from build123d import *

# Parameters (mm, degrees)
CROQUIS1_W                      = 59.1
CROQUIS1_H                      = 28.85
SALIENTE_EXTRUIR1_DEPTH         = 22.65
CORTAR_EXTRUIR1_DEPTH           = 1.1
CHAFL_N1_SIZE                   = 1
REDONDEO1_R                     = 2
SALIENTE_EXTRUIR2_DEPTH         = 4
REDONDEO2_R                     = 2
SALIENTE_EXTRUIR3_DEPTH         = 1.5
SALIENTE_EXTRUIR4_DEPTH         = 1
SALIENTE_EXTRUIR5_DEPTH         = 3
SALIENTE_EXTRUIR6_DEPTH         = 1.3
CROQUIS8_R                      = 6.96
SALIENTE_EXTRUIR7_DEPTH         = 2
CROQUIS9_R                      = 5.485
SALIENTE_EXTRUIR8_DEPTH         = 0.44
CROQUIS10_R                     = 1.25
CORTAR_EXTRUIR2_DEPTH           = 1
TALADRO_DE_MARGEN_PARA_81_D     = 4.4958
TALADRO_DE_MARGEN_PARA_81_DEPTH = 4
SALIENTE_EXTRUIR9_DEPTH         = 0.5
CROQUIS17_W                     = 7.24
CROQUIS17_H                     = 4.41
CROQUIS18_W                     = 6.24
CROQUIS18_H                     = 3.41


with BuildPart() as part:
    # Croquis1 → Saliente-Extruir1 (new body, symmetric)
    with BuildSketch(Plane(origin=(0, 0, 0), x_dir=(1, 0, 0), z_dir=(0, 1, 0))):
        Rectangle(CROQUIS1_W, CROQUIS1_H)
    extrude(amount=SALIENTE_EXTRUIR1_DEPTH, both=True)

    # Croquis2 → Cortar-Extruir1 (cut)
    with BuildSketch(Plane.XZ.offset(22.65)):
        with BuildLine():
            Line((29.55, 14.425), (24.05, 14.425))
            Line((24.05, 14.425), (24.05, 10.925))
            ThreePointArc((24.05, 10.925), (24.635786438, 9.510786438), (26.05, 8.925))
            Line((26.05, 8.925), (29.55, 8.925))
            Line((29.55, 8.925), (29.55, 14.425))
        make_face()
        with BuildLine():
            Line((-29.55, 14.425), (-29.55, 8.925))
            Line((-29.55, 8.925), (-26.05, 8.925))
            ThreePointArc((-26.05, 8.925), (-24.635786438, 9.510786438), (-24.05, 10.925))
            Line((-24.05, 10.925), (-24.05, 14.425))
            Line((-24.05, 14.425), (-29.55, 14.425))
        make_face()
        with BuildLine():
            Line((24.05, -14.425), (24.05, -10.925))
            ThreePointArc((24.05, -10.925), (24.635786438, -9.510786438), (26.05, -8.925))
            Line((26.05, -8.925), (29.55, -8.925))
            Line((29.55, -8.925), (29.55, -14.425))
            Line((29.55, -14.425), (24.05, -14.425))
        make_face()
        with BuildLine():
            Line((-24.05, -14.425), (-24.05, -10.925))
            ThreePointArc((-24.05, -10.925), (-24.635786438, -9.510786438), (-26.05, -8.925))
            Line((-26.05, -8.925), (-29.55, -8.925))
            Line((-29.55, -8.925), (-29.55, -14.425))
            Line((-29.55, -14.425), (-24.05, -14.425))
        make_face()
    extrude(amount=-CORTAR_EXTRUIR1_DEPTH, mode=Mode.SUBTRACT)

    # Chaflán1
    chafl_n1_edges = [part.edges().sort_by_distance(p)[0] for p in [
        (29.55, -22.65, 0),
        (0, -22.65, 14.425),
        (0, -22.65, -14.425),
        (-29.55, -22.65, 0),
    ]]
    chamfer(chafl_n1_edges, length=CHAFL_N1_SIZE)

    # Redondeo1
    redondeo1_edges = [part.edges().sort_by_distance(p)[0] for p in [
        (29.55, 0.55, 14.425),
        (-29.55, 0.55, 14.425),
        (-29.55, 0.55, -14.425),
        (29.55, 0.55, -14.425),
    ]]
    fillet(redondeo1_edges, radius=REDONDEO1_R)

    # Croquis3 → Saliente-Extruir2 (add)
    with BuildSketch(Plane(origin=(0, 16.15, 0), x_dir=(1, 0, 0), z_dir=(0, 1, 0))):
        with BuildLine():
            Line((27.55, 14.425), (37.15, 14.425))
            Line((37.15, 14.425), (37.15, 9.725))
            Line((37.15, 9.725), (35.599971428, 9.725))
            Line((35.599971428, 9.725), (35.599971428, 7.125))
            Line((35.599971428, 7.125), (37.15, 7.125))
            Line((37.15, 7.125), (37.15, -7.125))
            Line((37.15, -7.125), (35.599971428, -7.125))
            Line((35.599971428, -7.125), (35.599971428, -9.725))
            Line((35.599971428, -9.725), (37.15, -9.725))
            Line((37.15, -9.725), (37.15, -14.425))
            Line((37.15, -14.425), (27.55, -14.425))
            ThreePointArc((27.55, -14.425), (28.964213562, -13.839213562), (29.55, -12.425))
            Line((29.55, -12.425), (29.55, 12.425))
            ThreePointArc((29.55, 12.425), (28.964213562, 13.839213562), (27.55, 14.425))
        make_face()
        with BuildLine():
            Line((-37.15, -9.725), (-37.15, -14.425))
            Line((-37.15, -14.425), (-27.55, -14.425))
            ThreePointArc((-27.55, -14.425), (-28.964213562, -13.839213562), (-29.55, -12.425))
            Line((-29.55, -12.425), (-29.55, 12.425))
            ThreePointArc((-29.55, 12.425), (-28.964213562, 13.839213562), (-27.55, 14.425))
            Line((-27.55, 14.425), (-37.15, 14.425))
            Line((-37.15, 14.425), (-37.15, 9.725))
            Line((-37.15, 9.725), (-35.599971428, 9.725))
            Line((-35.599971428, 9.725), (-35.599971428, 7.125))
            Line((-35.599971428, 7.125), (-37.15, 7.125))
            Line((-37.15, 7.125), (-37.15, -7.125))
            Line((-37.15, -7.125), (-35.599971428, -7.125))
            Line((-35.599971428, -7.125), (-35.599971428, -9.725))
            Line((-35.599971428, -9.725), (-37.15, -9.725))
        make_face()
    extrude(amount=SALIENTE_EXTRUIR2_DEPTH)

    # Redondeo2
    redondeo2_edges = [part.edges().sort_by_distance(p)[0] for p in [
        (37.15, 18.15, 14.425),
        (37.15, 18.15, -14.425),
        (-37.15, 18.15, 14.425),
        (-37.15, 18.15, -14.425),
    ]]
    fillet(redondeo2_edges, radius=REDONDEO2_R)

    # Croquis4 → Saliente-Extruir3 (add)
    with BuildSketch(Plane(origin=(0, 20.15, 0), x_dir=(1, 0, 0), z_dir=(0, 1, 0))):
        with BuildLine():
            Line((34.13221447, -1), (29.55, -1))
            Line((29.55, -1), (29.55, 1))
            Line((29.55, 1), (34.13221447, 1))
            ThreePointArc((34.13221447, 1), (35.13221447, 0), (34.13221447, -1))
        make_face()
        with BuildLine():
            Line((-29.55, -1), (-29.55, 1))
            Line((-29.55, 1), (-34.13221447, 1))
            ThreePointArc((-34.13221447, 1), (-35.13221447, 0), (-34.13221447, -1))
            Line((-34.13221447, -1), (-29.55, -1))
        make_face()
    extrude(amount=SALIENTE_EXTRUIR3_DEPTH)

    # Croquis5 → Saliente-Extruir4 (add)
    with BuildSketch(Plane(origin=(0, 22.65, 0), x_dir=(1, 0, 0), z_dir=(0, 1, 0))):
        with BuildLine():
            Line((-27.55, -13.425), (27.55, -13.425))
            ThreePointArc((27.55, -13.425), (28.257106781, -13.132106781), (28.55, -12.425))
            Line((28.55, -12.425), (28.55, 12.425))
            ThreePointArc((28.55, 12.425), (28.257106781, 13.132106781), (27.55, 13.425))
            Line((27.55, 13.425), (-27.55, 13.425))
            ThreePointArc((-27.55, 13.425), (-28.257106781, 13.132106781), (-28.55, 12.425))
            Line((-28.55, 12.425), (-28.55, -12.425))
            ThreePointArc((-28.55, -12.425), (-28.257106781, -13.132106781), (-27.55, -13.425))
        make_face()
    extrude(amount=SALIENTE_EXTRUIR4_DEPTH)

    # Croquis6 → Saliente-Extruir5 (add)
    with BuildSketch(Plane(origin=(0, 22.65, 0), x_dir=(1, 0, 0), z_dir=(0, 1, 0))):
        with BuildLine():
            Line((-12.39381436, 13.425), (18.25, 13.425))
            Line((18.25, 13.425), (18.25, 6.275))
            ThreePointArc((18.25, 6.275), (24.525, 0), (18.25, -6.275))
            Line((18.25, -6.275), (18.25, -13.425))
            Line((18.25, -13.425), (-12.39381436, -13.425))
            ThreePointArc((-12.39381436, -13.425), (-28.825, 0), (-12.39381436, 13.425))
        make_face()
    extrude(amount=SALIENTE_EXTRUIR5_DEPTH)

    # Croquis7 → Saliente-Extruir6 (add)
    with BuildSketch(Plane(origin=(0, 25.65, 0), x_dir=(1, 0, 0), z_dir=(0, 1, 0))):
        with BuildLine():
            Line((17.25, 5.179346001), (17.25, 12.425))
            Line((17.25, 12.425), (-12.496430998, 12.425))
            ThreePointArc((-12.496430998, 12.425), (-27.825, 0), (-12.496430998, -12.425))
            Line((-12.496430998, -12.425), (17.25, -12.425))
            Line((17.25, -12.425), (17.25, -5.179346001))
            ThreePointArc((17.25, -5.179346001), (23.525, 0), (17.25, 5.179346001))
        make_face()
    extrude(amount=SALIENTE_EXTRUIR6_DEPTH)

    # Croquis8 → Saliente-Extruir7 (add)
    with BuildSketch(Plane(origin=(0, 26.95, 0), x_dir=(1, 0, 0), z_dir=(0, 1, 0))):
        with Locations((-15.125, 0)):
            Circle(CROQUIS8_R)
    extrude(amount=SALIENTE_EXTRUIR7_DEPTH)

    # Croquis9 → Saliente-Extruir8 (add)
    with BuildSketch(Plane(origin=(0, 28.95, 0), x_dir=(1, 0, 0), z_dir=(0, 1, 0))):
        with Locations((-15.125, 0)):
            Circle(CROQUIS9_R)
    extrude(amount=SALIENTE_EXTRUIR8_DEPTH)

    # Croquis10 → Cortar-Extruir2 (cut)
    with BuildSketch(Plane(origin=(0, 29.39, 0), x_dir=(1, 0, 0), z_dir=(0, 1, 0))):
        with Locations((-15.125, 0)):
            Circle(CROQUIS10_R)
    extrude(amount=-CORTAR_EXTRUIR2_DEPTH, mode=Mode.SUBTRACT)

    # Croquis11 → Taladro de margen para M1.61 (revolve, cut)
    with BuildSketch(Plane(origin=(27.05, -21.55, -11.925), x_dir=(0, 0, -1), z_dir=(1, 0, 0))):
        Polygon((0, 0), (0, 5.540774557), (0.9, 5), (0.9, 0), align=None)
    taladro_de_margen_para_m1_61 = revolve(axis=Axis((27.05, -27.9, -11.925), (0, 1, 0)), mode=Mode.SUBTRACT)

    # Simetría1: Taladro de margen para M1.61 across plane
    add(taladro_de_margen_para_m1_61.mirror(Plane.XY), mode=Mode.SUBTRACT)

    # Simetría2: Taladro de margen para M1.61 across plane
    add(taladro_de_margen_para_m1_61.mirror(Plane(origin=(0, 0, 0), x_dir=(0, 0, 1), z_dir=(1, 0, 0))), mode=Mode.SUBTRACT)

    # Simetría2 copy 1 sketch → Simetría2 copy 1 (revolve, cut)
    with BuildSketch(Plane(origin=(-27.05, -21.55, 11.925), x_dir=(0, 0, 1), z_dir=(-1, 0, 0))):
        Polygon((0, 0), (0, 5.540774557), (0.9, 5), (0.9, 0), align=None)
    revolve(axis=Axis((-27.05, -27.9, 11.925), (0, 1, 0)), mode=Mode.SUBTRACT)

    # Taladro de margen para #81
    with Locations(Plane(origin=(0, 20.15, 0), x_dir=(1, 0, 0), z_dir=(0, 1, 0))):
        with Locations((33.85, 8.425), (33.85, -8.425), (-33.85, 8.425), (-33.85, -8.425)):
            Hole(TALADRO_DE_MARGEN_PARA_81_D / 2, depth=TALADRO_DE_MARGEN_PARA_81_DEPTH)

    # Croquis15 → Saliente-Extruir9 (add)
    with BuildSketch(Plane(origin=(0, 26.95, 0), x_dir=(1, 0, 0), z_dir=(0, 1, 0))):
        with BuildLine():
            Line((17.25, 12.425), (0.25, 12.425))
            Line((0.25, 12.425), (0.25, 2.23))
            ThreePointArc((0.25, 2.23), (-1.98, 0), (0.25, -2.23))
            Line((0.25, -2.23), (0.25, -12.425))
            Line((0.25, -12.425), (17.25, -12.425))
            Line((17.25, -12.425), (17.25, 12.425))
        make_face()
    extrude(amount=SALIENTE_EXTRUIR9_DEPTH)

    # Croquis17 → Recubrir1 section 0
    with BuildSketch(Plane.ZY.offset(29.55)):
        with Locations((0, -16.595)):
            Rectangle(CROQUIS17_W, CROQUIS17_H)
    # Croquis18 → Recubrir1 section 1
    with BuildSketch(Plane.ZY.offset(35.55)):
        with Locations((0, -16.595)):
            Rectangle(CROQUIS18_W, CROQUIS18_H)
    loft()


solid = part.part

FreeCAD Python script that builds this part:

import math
import FreeCAD as App
import Part
import Sketcher

V = App.Vector
Q = App.Units.Quantity


def edges_at(feature, points):
    """Names of the edges that pass closest to the given points."""
    edges = feature.Shape.Edges
    near = lambda p: min(range(len(edges)), key=lambda i: edges[i].distToShape(Part.Vertex(*p))[0])
    return sorted({f"Edge{near(p) + 1}" for p in points})


def add_polygon(sketch, points):
    """Adds a closed chain of lines whose ends are joined by coincident constraints."""
    first, n = sketch.GeometryCount, len(points)
    for a, b in zip(points, points[1:] + points[:1]):
        sketch.addGeometry(Part.LineSegment(App.Vector(*a, 0), App.Vector(*b, 0)), False)
    for i in range(n):
        sketch.addConstraint(Sketcher.Constraint("Coincident", first + i, 2, first + (i + 1) % n, 1))

doc = App.newDocument("Part")
body = doc.addObject("PartDesign::Body", "Body")

sketch1 = body.newObject("Sketcher::SketchObject", "Sketch")
sketch1.AttachmentSupport = (doc.getObject("XZ_Plane"), [""])
sketch1.MapMode = "FlatFace"
add_polygon(sketch1, [(-30, -14), (-30, 14), (30, 14), (30, -14)])
sketch1.addConstraint([
    Sketcher.Constraint("Vertical", 0),
    Sketcher.Constraint("Horizontal", 1),
    Sketcher.Constraint("Vertical", 2),
    Sketcher.Constraint("Horizontal", 3),
    Sketcher.Constraint("Symmetric", 0, 2, 2, 2, -1, 1),
    Sketcher.Constraint("DistanceX", 1, 1, 1, 2, 59.1),
    Sketcher.Constraint("DistanceY", 0, 1, 0, 2, 28.85),
])
pad1 = body.newObject("PartDesign::Pad", "Pad")
pad1.Profile = sketch1
pad1.Length = 45.3
pad1.Midplane = True

sketch2 = body.newObject("Sketcher::SketchObject", "Sketch001")
sketch2.AttachmentSupport = (doc.getObject("XZ_Plane"), [""])
sketch2.MapMode = "FlatFace"
sketch2.AttachmentOffset = App.Placement(V(0, 0, 22.65), App.Rotation())
sketch2.addGeometry([
    Part.LineSegment(V(29.6, 14.4, 0), V(24.1, 14.4, 0)),
    Part.LineSegment(V(24.1, 14.4, 0), V(24.1, 10.9, 0)),
    Part.ArcOfCircle(Part.Circle(V(26.1, 10.9, 0), V(0, 0, 1), 2), math.radians(-180), math.radians(-90)),
    Part.LineSegment(V(26.1, 8.9, 0), V(29.6, 8.9, 0)),
    Part.LineSegment(V(29.6, 8.9, 0), V(29.6, 14.4, 0)),
    Part.LineSegment(V(-29.6, 14.4, 0), V(-29.6, 8.9, 0)),
    Part.LineSegment(V(-29.6, 8.9, 0), V(-26.1, 8.9, 0)),
    Part.ArcOfCircle(Part.Circle(V(-26.1, 10.9, 0), V(0, 0, 1), 2), math.radians(-90), math.radians(0)),
    Part.LineSegment(V(-24.1, 10.9, 0), V(-24.1, 14.4, 0)),
    Part.LineSegment(V(-24.1, 14.4, 0), V(-29.6, 14.4, 0)),
    Part.LineSegment(V(24.1, -10.9, 0), V(24.1, -14.4, 0)),
    Part.LineSegment(V(24.1, -14.4, 0), V(29.6, -14.4, 0)),
    Part.LineSegment(V(29.6, -14.4, 0), V(29.6, -8.9, 0)),
    Part.LineSegment(V(29.6, -8.9, 0), V(26.1, -8.9, 0)),
    Part.ArcOfCircle(Part.Circle(V(26.1, -10.9, 0), V(0, 0, 1), 2), math.radians(90), math.radians(180)),
    Part.LineSegment(V(-24.1, -14.4, 0), V(-24.1, -10.9, 0)),
    Part.ArcOfCircle(Part.Circle(V(-26.1, -10.9, 0), V(0, 0, 1), 2), math.radians(0), math.radians(90)),
    Part.LineSegment(V(-26.1, -8.9, 0), V(-29.6, -8.9, 0)),
    Part.LineSegment(V(-29.6, -8.9, 0), V(-29.6, -14.4, 0)),
    Part.LineSegment(V(-29.6, -14.4, 0), V(-24.1, -14.4, 0)),
], False)
sketch2.addConstraint([
    Sketcher.Constraint("Coincident", 0, 2, 1, 1),
    Sketcher.Constraint("Tangent", 1, 2, 2, 1),
    Sketcher.Constraint("Tangent", 2, 2, 3, 1),
    Sketcher.Constraint("Coincident", 3, 2, 4, 1),
    Sketcher.Constraint("Coincident", 4, 2, 0, 1),
    Sketcher.Constraint("Coincident", 5, 2, 6, 1),
    Sketcher.Constraint("Tangent", 6, 2, 7, 1),
    Sketcher.Constraint("Tangent", 7, 2, 8, 1),
    Sketcher.Constraint("Coincident", 8, 2, 9, 1),
    Sketcher.Constraint("Coincident", 9, 2, 5, 1),
    Sketcher.Constraint("Coincident", 10, 2, 11, 1),
    Sketcher.Constraint("Coincident", 11, 2, 12, 1),
    Sketcher.Constraint("Coincident", 12, 2, 13, 1),
    Sketcher.Constraint("Tangent", 13, 2, 14, 1),
    Sketcher.Constraint("Tangent", 14, 2, 10, 1),
    Sketcher.Constraint("Tangent", 15, 2, 16, 1),
    Sketcher.Constraint("Tangent", 16, 2, 17, 1),
    Sketcher.Constraint("Coincident", 17, 2, 18, 1),
    Sketcher.Constraint("Coincident", 18, 2, 19, 1),
    Sketcher.Constraint("Coincident", 19, 2, 15, 1),
    Sketcher.Constraint("Horizontal", 0),
    Sketcher.Constraint("Vertical", 1),
    Sketcher.Constraint("Horizontal", 3),
    Sketcher.Constraint("Vertical", 4),
    Sketcher.Constraint("Vertical", 5),
    Sketcher.Constraint("Horizontal", 6),
    Sketcher.Constraint("Vertical", 8),
    Sketcher.Constraint("Horizontal", 9),
    Sketcher.Constraint("Vertical", 10),
    Sketcher.Constraint("Horizontal", 11),
    Sketcher.Constraint("Vertical", 12),
    Sketcher.Constraint("Horizontal", 13),
    Sketcher.Constraint("Vertical", 15),
    Sketcher.Constraint("Horizontal", 17),
    Sketcher.Constraint("Vertical", 18),
    Sketcher.Constraint("Horizontal", 19),
    Sketcher.Constraint("Equal", 2, 7),
    Sketcher.Constraint("Equal", 7, 14),
    Sketcher.Constraint("Equal", 14, 16),
    Sketcher.Constraint("Symmetric", 7, 3, 14, 3, -1, 1),
    Sketcher.Constraint("Symmetric", 2, 3, 16, 3, -1, 1),
    Sketcher.Constraint("Symmetric", 9, 2, 11, 2, -1, 1),
    Sketcher.Constraint("Symmetric", 4, 2, 18, 2, -1, 1),
    Sketcher.Constraint("Symmetric", 2, 3, 7, 3, -2),
    Sketcher.Constraint("Symmetric", 4, 2, 9, 2, -2),
    Sketcher.Constraint("Equal", 17, 1),
    Sketcher.Constraint("Radius", 2, 2.0),
    Sketcher.Constraint("DistanceX", 0, 2, 0, 1, 5.5),
    Sketcher.Constraint("DistanceX", 7, 3, 2, 3, 52.1),
    Sketcher.Constraint("DistanceY", 14, 3, 2, 3, 21.85),
])
pocket1 = body.newObject("PartDesign::Pocket", "Pocket")
pocket1.Profile = sketch2
pocket1.Length = 1.1
doc.recompute()

chamfer = body.newObject("PartDesign::Chamfer", "Chamfer")
chamfer.Base = (pocket1, edges_at(pocket1, [
    (29.55, -22.65, 0),
    (0, -22.65, 14.425),
    (0, -22.65, -14.425),
    (-29.55, -22.65, 0),
]))
chamfer.Size = 1
doc.recompute()

fillet = body.newObject("PartDesign::Fillet", "Fillet")
fillet.Base = (chamfer, edges_at(chamfer, [
    (29.55, 0.55, 14.425),
    (-29.55, 0.55, 14.425),
    (-29.55, 0.55, -14.425),
    (29.55, 0.55, -14.425),
]))
fillet.Radius = 2

sketch3 = body.newObject("Sketcher::SketchObject", "Sketch002")
sketch3.AttachmentSupport = (doc.getObject("XZ_Plane"), [""])
sketch3.MapMode = "FlatFace"
sketch3.AttachmentOffset = App.Placement(V(0, 0, -16.15), App.Rotation())
sketch3.addGeometry([
    Part.LineSegment(V(37.1, -14.4, 0), V(27.6, -14.4, 0)),
    Part.ArcOfCircle(Part.Circle(V(27.5, -12.4, 0), V(0, 0, 1), 2), math.radians(-90), math.radians(0)),
    Part.LineSegment(V(29.6, -12.4, 0), V(29.6, 12.4, 0)),
    Part.ArcOfCircle(Part.Circle(V(27.5, 12.4, 0), V(0, 0, 1), 2), math.radians(0), math.radians(90)),
    Part.LineSegment(V(27.6, 14.4, 0), V(37.1, 14.4, 0)),
    Part.LineSegment(V(37.1, 14.4, 0), V(37.1, 9.7, 0)),
    Part.LineSegment(V(37.1, 9.7, 0), V(35.6, 9.7, 0)),
    Part.LineSegment(V(35.6, 9.7, 0), V(35.6, 7.1, 0)),
    Part.LineSegment(V(35.6, 7.1, 0), V(37.1, 7.1, 0)),
    Part.LineSegment(V(37.1, 7.1, 0), V(37.1, -7.1, 0)),
    Part.LineSegment(V(37.1, -7.1, 0), V(35.6, -7.1, 0)),
    Part.LineSegment(V(35.6, -7.1, 0), V(35.6, -9.7, 0)),
    Part.LineSegment(V(35.6, -9.7, 0), V(37.1, -9.7, 0)),
    Part.LineSegment(V(37.1, -9.7, 0), V(37.1, -14.4, 0)),
    Part.LineSegment(V(-37.1, 9.7, 0), V(-37.1, 14.4, 0)),
    Part.LineSegment(V(-37.1, 14.4, 0), V(-27.6, 14.4, 0)),
    Part.ArcOfCircle(Part.Circle(V(-27.5, 12.4, 0), V(0, 0, 1), 2), math.radians(90), math.radians(180)),
    Part.LineSegment(V(-29.6, 12.4, 0), V(-29.6, -12.4, 0)),
    Part.ArcOfCircle(Part.Circle(V(-27.5, -12.4, 0), V(0, 0, 1), 2), math.radians(-180), math.radians(-90)),
    Part.LineSegment(V(-27.6, -14.4, 0), V(-37.1, -14.4, 0)),
    Part.LineSegment(V(-37.1, -14.4, 0), V(-37.1, -9.7, 0)),
    Part.LineSegment(V(-37.1, -9.7, 0), V(-35.6, -9.7, 0)),
    Part.LineSegment(V(-35.6, -9.7, 0), V(-35.6, -7.1, 0)),
    Part.LineSegment(V(-35.6, -7.1, 0), V(-37.1, -7.1, 0)),
    Part.LineSegment(V(-37.1, -7.1, 0), V(-37.1, 7.1, 0)),
    Part.LineSegment(V(-37.1, 7.1, 0), V(-35.6, 7.1, 0)),
    Part.LineSegment(V(-35.6, 7.1, 0), V(-35.6, 9.7, 0)),
    Part.LineSegment(V(-35.6, 9.7, 0), V(-37.1, 9.7, 0)),
], False)
sketch3.addConstraint([
    Sketcher.Constraint("Tangent", 0, 2, 1, 1),
    Sketcher.Constraint("Tangent", 1, 2, 2, 1),
    Sketcher.Constraint("Tangent", 2, 2, 3, 1),
    Sketcher.Constraint("Tangent", 3, 2, 4, 1),
    Sketcher.Constraint("Coincident", 4, 2, 5, 1),
    Sketcher.Constraint("Coincident", 5, 2, 6, 1),
    Sketcher.Constraint("Coincident", 6, 2, 7, 1),
    Sketcher.Constraint("Coincident", 7, 2, 8, 1),
    Sketcher.Constraint("Coincident", 8, 2, 9, 1),
    Sketcher.Constraint("Coincident", 9, 2, 10, 1),
    Sketcher.Constraint("Coincident", 10, 2, 11, 1),
    Sketcher.Constraint("Coincident", 11, 2, 12, 1),
    Sketcher.Constraint("Coincident", 12, 2, 13, 1),
    Sketcher.Constraint("Coincident", 13, 2, 0, 1),
    Sketcher.Constraint("Coincident", 14, 2, 15, 1),
    Sketcher.Constraint("Tangent", 15, 2, 16, 1),
    Sketcher.Constraint("Tangent", 16, 2, 17, 1),
    Sketcher.Constraint("Tangent", 17, 2, 18, 1),
    Sketcher.Constraint("Tangent", 18, 2, 19, 1),
    Sketcher.Constraint("Coincident", 19, 2, 20, 1),
    Sketcher.Constraint("Coincident", 20, 2, 21, 1),
    Sketcher.Constraint("Coincident", 21, 2, 22, 1),
    Sketcher.Constraint("Coincident", 22, 2, 23, 1),
    Sketcher.Constraint("Coincident", 23, 2, 24, 1),
    Sketcher.Constraint("Coincident", 24, 2, 25, 1),
    Sketcher.Constraint("Coincident", 25, 2, 26, 1),
    Sketcher.Constraint("Coincident", 26, 2, 27, 1),
    Sketcher.Constraint("Coincident", 27, 2, 14, 1),
    Sketcher.Constraint("Horizontal", 0),
    Sketcher.Constraint("Vertical", 2),
    Sketcher.Constraint("Horizontal", 4),
    Sketcher.Constraint("Vertical", 5),
    Sketcher.Constraint("Horizontal", 6),
    Sketcher.Constraint("Vertical", 7),
    Sketcher.Constraint("Horizontal", 8),
    Sketcher.Constraint("Vertical", 9),
    Sketcher.Constraint("Horizontal", 10),
    Sketcher.Constraint("Vertical", 11),
    Sketcher.Constraint("Horizontal", 12),
    Sketcher.Constraint("Vertical", 13),
    Sketcher.Constraint("Vertical", 14),
    Sketcher.Constraint("Horizontal", 15),
    Sketcher.Constraint("Vertical", 17),
    Sketcher.Constraint("Horizontal", 19),
    Sketcher.Constraint("Vertical", 20),
    Sketcher.Constraint("Horizontal", 21),
    Sketcher.Constraint("Vertical", 22),
    Sketcher.Constraint("Horizontal", 23),
    Sketcher.Constraint("Vertical", 24),
    Sketcher.Constraint("Horizontal", 25),
    Sketcher.Constraint("Vertical", 26),
    Sketcher.Constraint("Horizontal", 27),
    Sketcher.Constraint("Equal", 1, 3),
    Sketcher.Constraint("Equal", 3, 16),
    Sketcher.Constraint("Equal", 16, 18),
    Sketcher.Constraint("Symmetric", 1, 3, 16, 3, -1, 1),
    Sketcher.Constraint("Symmetric", 4, 2, 19, 2, -1, 1),
    Sketcher.Constraint("Symmetric", 6, 2, 21, 2, -1, 1),
    Sketcher.Constraint("Symmetric", 8, 2, 23, 2, -1, 1),
    Sketcher.Constraint("Symmetric", 10, 2, 25, 2, -1, 1),
    Sketcher.Constraint("Symmetric", 12, 2, 27, 2, -1, 1),
    Sketcher.Constraint("Symmetric", 4, 2, 14, 2, -2),
    Sketcher.Constraint("Symmetric", 11, 2, 21, 2, -2),
    Sketcher.Constraint("Horizontal", 10, 2, 22, 2),
    Sketcher.Constraint("Vertical", 5, 2, 8, 2),
    Sketcher.Constraint("Radius", 1, 2.0),
    Sketcher.Constraint("DistanceX", 0, 2, 0, 1, 9.6),
    Sketcher.Constraint("DistanceY", 5, 2, 5, 1, 4.7),
    Sketcher.Constraint("DistanceY", 7, 2, 7, 1, 2.6),
    Sketcher.Constraint("DistanceY", 2, 1, 2, 2, 24.85),
    Sketcher.Constraint("DistanceX", 16, 3, 3, 3, 55.1),
    Sketcher.Constraint("DistanceX", 6, 2, 6, 1, 1.550029),
])
pad2 = body.newObject("PartDesign::Pad", "Pad001")
pad2.Profile = sketch3
pad2.Length = 4
pad2.Reversed = True
doc.recompute()

fillet2 = body.newObject("PartDesign::Fillet", "Fillet001")
fillet2.Base = (pad2, edges_at(pad2, [
    (37.15, 18.15, 14.425),
    (37.15, 18.15, -14.425),
    (-37.15, 18.15, 14.425),
    (-37.15, 18.15, -14.425),
]))
fillet2.Radius = 2

sketch4 = body.newObject("Sketcher::SketchObject", "Sketch003")
sketch4.AttachmentSupport = (doc.getObject("XZ_Plane"), [""])
sketch4.MapMode = "FlatFace"
sketch4.AttachmentOffset = App.Placement(V(0, 0, -20.15), App.Rotation())
sketch4.addGeometry([
    Part.LineSegment(V(29.6, 1, 0), V(34.1, 1, 0)),
    Part.ArcOfCircle(Part.Circle(V(34.1, 0, 0), V(0, 0, 1), 1), math.radians(-90), math.radians(90)),
    Part.LineSegment(V(34.1, -1, 0), V(29.6, -1, 0)),
    Part.LineSegment(V(29.6, -1, 0), V(29.6, 1, 0)),
    Part.LineSegment(V(-29.6, 1, 0), V(-29.6, -1, 0)),
    Part.LineSegment(V(-29.6, -1, 0), V(-34.1, -1, 0)),
    Part.ArcOfCircle(Part.Circle(V(-34.1, 0, 0), V(0, 0, 1), 1), math.radians(90), math.radians(270)),
    Part.LineSegment(V(-34.1, 1, 0), V(-29.6, 1, 0)),
], False)
sketch4.addConstraint([
    Sketcher.Constraint("Tangent", 0, 2, 1, 2),
    Sketcher.Constraint("Tangent", 1, 1, 2, 1),
    Sketcher.Constraint("Coincident", 2, 2, 3, 1),
    Sketcher.Constraint("Coincident", 3, 2, 0, 1),
    Sketcher.Constraint("Coincident", 4, 2, 5, 1),
    Sketcher.Constraint("Tangent", 5, 2, 6, 2),
    Sketcher.Constraint("Tangent", 6, 1, 7, 1),
    Sketcher.Constraint("Coincident", 7, 2, 4, 1),
    Sketcher.Constraint("Horizontal", 0),
    Sketcher.Constraint("Horizontal", 2),
    Sketcher.Constraint("Vertical", 3),
    Sketcher.Constraint("Vertical", 4),
    Sketcher.Constraint("Horizontal", 5),
    Sketcher.Constraint("Horizontal", 7),
    Sketcher.Constraint("Equal", 1, 6),
    Sketcher.Constraint("Symmetric", 1, 3, 6, 3, -1, 1),
    Sketcher.Constraint("Symmetric", 2, 2, 4, 2, -2),
    Sketcher.Constraint("Radius", 1, 1.0),
    Sketcher.Constraint("DistanceX", 4, 2, 2, 2, 59.1),
    Sketcher.Constraint("DistanceX", 0, 1, 0, 2, 4.582214),
])
pad3 = body.newObject("PartDesign::Pad", "Pad002")
pad3.Profile = sketch4
pad3.Length = 1.5
pad3.Reversed = True

sketch5 = body.newObject("Sketcher::SketchObject", "Sketch004")
sketch5.AttachmentSupport = (doc.getObject("XZ_Plane"), [""])
sketch5.MapMode = "FlatFace"
sketch5.AttachmentOffset = App.Placement(V(0, 0, -22.65), App.Rotation())
sketch5.addGeometry([
    Part.LineSegment(V(-27.6, 13.4, 0), V(27.6, 13.4, 0)),
    Part.ArcOfCircle(Part.Circle(V(27.5, 12.4, 0), V(0, 0, 1), 1), math.radians(0), math.radians(90)),
    Part.LineSegment(V(28.6, 12.4, 0), V(28.6, -12.4, 0)),
    Part.ArcOfCircle(Part.Circle(V(27.5, -12.4, 0), V(0, 0, 1), 1), math.radians(-90), math.radians(0)),
    Part.LineSegment(V(27.6, -13.4, 0), V(-27.6, -13.4, 0)),
    Part.ArcOfCircle(Part.Circle(V(-27.5, -12.4, 0), V(0, 0, 1), 1), math.radians(-180), math.radians(-90)),
    Part.LineSegment(V(-28.6, -12.4, 0), V(-28.6, 12.4, 0)),
    Part.ArcOfCircle(Part.Circle(V(-27.5, 12.4, 0), V(0, 0, 1), 1), math.radians(90), math.radians(180)),
], False)
sketch5.addConstraint([
    Sketcher.Constraint("Tangent", 0, 2, 1, 2),
    Sketcher.Constraint("Tangent", 1, 1, 2, 1),
    Sketcher.Constraint("Tangent", 2, 2, 3, 2),
    Sketcher.Constraint("Tangent", 3, 1, 4, 1),
    Sketcher.Constraint("Tangent", 4, 2, 5, 2),
    Sketcher.Constraint("Tangent", 5, 1, 6, 1),
    Sketcher.Constraint("Tangent", 6, 2, 7, 2),
    Sketcher.Constraint("Tangent", 7, 1, 0, 1),
    Sketcher.Constraint("Horizontal", 0),
    Sketcher.Constraint("Vertical", 2),
    Sketcher.Constraint("Horizontal", 4),
    Sketcher.Constraint("Vertical", 6),
    Sketcher.Constraint("Equal", 1, 3),
    Sketcher.Constraint("Equal", 3, 5),
    Sketcher.Constraint("Equal", 5, 7),
    Sketcher.Constraint("Symmetric", 1, 3, 5, 3, -1, 1),
    Sketcher.Constraint("Radius", 1, 1.0),
    Sketcher.Constraint("DistanceX", 0, 1, 0, 2, 55.1),
    Sketcher.Constraint("DistanceY", 2, 2, 2, 1, 24.85),
])
pad4 = body.newObject("PartDesign::Pad", "Pad003")
pad4.Profile = sketch5
pad4.Length = 1
pad4.Reversed = True

sketch6 = body.newObject("Sketcher::SketchObject", "Sketch005")
sketch6.AttachmentSupport = (doc.getObject("XZ_Plane"), [""])
sketch6.MapMode = "FlatFace"
sketch6.AttachmentOffset = App.Placement(V(0, 0, -22.65), App.Rotation())
sketch6.addGeometry([
    Part.LineSegment(V(18, -13, 0), V(-12, -13, 0)),
    Part.ArcOfCircle(Part.Circle(V(-15, 0, 0), V(0, 0, 1), 14), math.radians(79), math.radians(281)),
    Part.LineSegment(V(-12, 13, 0), V(18, 13, 0)),
    Part.LineSegment(V(18, 13, 0), V(18, 6, 0)),
    Part.ArcOfCircle(Part.Circle(V(18, 0, 0), V(0, 0, 1), 6), math.radians(-90), math.radians(90)),
    Part.LineSegment(V(18, -6, 0), V(18, -13, 0)),
], False)
sketch6.addConstraint([
    Sketcher.Constraint("Coincident", 0, 2, 1, 2),
    Sketcher.Constraint("Coincident", 1, 1, 2, 1),
    Sketcher.Constraint("Coincident", 2, 2, 3, 1),
    Sketcher.Constraint("Coincident", 3, 2, 4, 2),
    Sketcher.Constraint("Coincident", 4, 1, 5, 1),
    Sketcher.Constraint("Coincident", 5, 2, 0, 1),
    Sketcher.Constraint("Horizontal", 0),
    Sketcher.Constraint("Horizontal", 2),
    Sketcher.Constraint("Vertical", 3),
    Sketcher.Constraint("Vertical", 5),
    Sketcher.Constraint("Symmetric", 0, 2, 1, 1, -1),
    Sketcher.Constraint("Symmetric", 3, 2, 4, 1, -1),
    Sketcher.Constraint("Vertical", 4, 3, 2, 2),
    Sketcher.Constraint("Radius", 1, 13.7),
    Sketcher.Constraint("Radius", 4, 6.275),
    Sketcher.Constraint("DistanceY", 3, 2, 3, 1, 7.15),
    Sketcher.Constraint("DistanceX", -1, 1, 4, 3, 18.25),
    Sketcher.Constraint("DistanceX", 1, 3, -1, 1, 15.125),
])
pad5 = body.newObject("PartDesign::Pad", "Pad004")
pad5.Profile = sketch6
pad5.Length = 3
pad5.Reversed = True

sketch7 = body.newObject("Sketcher::SketchObject", "Sketch006")
sketch7.AttachmentSupport = (doc.getObject("XZ_Plane"), [""])
sketch7.MapMode = "FlatFace"
sketch7.AttachmentOffset = App.Placement(V(0, 0, -25.65), App.Rotation())
sketch7.addGeometry([
    Part.LineSegment(V(17, -5, 0), V(17, -12, 0)),
    Part.LineSegment(V(17, -12, 0), V(-12, -12, 0)),
    Part.ArcOfCircle(Part.Circle(V(-15, 0, 0), V(0, 0, 1), 13), math.radians(78), math.radians(282)),
    Part.LineSegment(V(-12, 12, 0), V(17, 12, 0)),
    Part.LineSegment(V(17, 12, 0), V(17, 5, 0)),
    Part.ArcOfCircle(Part.Circle(V(18, 0, 0), V(0, 0, 1), 5), math.radians(-101), math.radians(101)),
], False)
sketch7.addConstraint([
    Sketcher.Constraint("Coincident", 0, 2, 1, 1),
    Sketcher.Constraint("Coincident", 1, 2, 2, 2),
    Sketcher.Constraint("Coincident", 2, 1, 3, 1),
    Sketcher.Constraint("Coincident", 3, 2, 4, 1),
    Sketcher.Constraint("Coincident", 4, 2, 5, 2),
    Sketcher.Constraint("Coincident", 5, 1, 0, 1),
    Sketcher.Constraint("Vertical", 0),
    Sketcher.Constraint("Horizontal", 1),
    Sketcher.Constraint("Horizontal", 3),
    Sketcher.Constraint("Vertical", 4),
    Sketcher.Constraint("Symmetric", 1, 2, 2, 1, -1),
    Sketcher.Constraint("Symmetric", 4, 2, 5, 1, -1),
    Sketcher.Constraint("Radius", 2, 12.7),
    Sketcher.Constraint("Radius", 5, 5.275),
    Sketcher.Constraint("DistanceX", 0, 2, 5, 3, 1.0),
    Sketcher.Constraint("DistanceX", -1, 1, 5, 3, 18.25),
    Sketcher.Constraint("DistanceY", 1, 2, 2, 1, 24.85),
    Sketcher.Constraint("DistanceX", 2, 3, -1, 1, 15.125),
])
pad6 = body.newObject("PartDesign::Pad", "Pad005")
pad6.Profile = sketch7
pad6.Length = 1.3
pad6.Reversed = True

sketch8 = body.newObject("Sketcher::SketchObject", "Sketch007")
sketch8.AttachmentSupport = (doc.getObject("XZ_Plane"), [""])
sketch8.MapMode = "FlatFace"
sketch8.AttachmentOffset = App.Placement(V(0, 0, -26.95), App.Rotation())
sketch8.addGeometry(Part.Circle(V(-15, 0, 0), V(0, 0, 1), 7), False)
sketch8.addConstraint([
    Sketcher.Constraint("PointOnObject", 0, 3, -1),
    Sketcher.Constraint("Diameter", 0, 13.92),
    Sketcher.Constraint("DistanceX", 0, 3, -1, 1, 15.125),
])
pad7 = body.newObject("PartDesign::Pad", "Pad006")
pad7.Profile = sketch8
pad7.Length = 2
pad7.Reversed = True

sketch9 = body.newObject("Sketcher::SketchObject", "Sketch008")
sketch9.AttachmentSupport = (doc.getObject("XZ_Plane"), [""])
sketch9.MapMode = "FlatFace"
sketch9.AttachmentOffset = App.Placement(V(0, 0, -28.95), App.Rotation())
sketch9.addGeometry(Part.Circle(V(-15, 0, 0), V(0, 0, 1), 5), False)
sketch9.addConstraint([
    Sketcher.Constraint("PointOnObject", 0, 3, -1),
    Sketcher.Constraint("Diameter", 0, 10.97),
    Sketcher.Constraint("DistanceX", 0, 3, -1, 1, 15.125),
])
pad8 = body.newObject("PartDesign::Pad", "Pad007")
pad8.Profile = sketch9
pad8.Length = 0.44
pad8.Reversed = True

sketch10 = body.newObject("Sketcher::SketchObject", "Sketch009")
sketch10.AttachmentSupport = (doc.getObject("XZ_Plane"), [""])
sketch10.MapMode = "FlatFace"
sketch10.AttachmentOffset = App.Placement(V(0, 0, -29.39), App.Rotation())
sketch10.addGeometry(Part.Circle(V(-15.1, 0, 0), V(0, 0, 1), 1.2), False)
sketch10.addConstraint([
    Sketcher.Constraint("PointOnObject", 0, 3, -1),
    Sketcher.Constraint("Diameter", 0, 2.5),
    Sketcher.Constraint("DistanceX", 0, 3, -1, 1, 15.125),
])
pocket2 = body.newObject("PartDesign::Pocket", "Pocket001")
pocket2.Profile = sketch10
pocket2.Length = 1
pocket2.Reversed = True

sketch11 = body.newObject("Sketcher::SketchObject", "Sketch010")
sketch11.AttachmentSupport = (doc.getObject("YZ_Plane"), [""])
sketch11.MapMode = "FlatFace"
sketch11.AttachmentOffset = App.Placement(V(0, 0, 27.05), App.Rotation())
add_polygon(sketch11, [(-16, -11.9), (-21.6, -11.9), (-21.6, -12.8), (-16.6, -12.8)])
sketch11.addGeometry(Part.LineSegment(V(-21.6, -11.9, 0), V(-16, -11.9, 0)), True)
sketch11.addConstraint([
    Sketcher.Constraint("Horizontal", 0),
    Sketcher.Constraint("Vertical", 1),
    Sketcher.Constraint("Horizontal", 2),
    Sketcher.Constraint("Horizontal", 4),
    Sketcher.Constraint("Coincident", 4, 1, 0, 2),
    Sketcher.Constraint("Equal", 0, 4),
    Sketcher.Constraint("DistanceX", 2, 1, 2, 2, 5.0),
    Sketcher.Constraint("Angle", 3, Q("59 deg")),
    Sketcher.Constraint("DistanceY", 1, 2, 1, 1, 0.9),
    Sketcher.Constraint("DistanceX", 0, 2, -1, 1, 21.55),
    Sketcher.Constraint("DistanceY", 0, 2, -1, 1, 11.925),
])
groove = body.newObject("PartDesign::Groove", "Groove")
groove.Profile = sketch11
groove.ReferenceAxis = (sketch11, ["Axis0"])
groove.Angle = 360
doc.recompute()

mirrored = body.newObject("PartDesign::Mirrored", "Mirrored")
mirrored.Originals = [groove]
mirrored.MirrorPlane = (doc.getObject("XY_Plane"), [""])
body.Tip = mirrored
doc.recompute()

mirrored2 = body.newObject("PartDesign::Mirrored", "Mirrored001")
mirrored2.Originals = [groove]
mirrored2.MirrorPlane = (doc.getObject("YZ_Plane"), [""])
body.Tip = mirrored2

sketch12 = body.newObject("Sketcher::SketchObject", "Sketch011")
sketch12.AttachmentSupport = (doc.getObject("YZ_Plane"), [""])
sketch12.MapMode = "FlatFace"
sketch12.AttachmentOffset = App.Placement(V(0, 0, -27.05), App.Rotation())
add_polygon(sketch12, [(-16, 11.9), (-21.6, 11.9), (-21.6, 12.8), (-16.6, 12.8)])
sketch12.addGeometry(Part.LineSegment(V(-21.6, 11.9, 0), V(-16, 11.9, 0)), True)
sketch12.addConstraint([
    Sketcher.Constraint("Horizontal", 0),
    Sketcher.Constraint("Vertical", 1),
    Sketcher.Constraint("Horizontal", 2),
    Sketcher.Constraint("Horizontal", 4),
    Sketcher.Constraint("Coincident", 4, 1, 0, 2),
    Sketcher.Constraint("Equal", 0, 4),
    Sketcher.Constraint("DistanceX", 2, 1, 2, 2, 5.0),
    Sketcher.Constraint("Angle", 3, Q("-59 deg")),
    Sketcher.Constraint("DistanceY", 1, 1, 1, 2, 0.9),
    Sketcher.Constraint("DistanceX", 0, 2, -1, 1, 21.55),
    Sketcher.Constraint("DistanceY", -1, 1, 0, 2, 11.925),
])
groove2 = body.newObject("PartDesign::Groove", "Groove001")
groove2.Profile = sketch12
groove2.ReferenceAxis = (sketch12, ["Axis0"])
groove2.Angle = 360

sketch13 = body.newObject("Sketcher::SketchObject", "Sketch012")
sketch13.AttachmentSupport = (doc.getObject("XZ_Plane"), [""])
sketch13.MapMode = "FlatFace"
sketch13.AttachmentOffset = App.Placement(V(0, 0, -20.15), App.Rotation())
sketch13.addGeometry([
    Part.Circle(V(33.9, -8.4, 0), V(0, 0, 1), 2.2),
    Part.Circle(V(33.9, 8.4, 0), V(0, 0, 1), 2.2),
    Part.Circle(V(-33.9, -8.4, 0), V(0, 0, 1), 2.2),
    Part.Circle(V(-33.9, 8.4, 0), V(0, 0, 1), 2.2),
], False)
sketch13.addConstraint([
    Sketcher.Constraint("Equal", 0, 1),
    Sketcher.Constraint("Equal", 1, 2),
    Sketcher.Constraint("Equal", 2, 3),
    Sketcher.Constraint("Symmetric", 1, 3, 2, 3, -1, 1),
    Sketcher.Constraint("Symmetric", 0, 3, 3, 3, -1, 1),
    Sketcher.Constraint("Symmetric", 0, 3, 2, 3, -2),
    Sketcher.Constraint("Diameter", 0, 4.4958),
    Sketcher.Constraint("DistanceX", 2, 3, 0, 3, 67.7),
    Sketcher.Constraint("DistanceY", 0, 3, 1, 3, 16.85),
])
doc.recompute()
hole = body.newObject("PartDesign::Hole", "Hole")
hole.Profile = sketch13
hole.ThreadType = "None"
hole.Diameter = 4.4958
hole.DepthType = "Dimension"
hole.Depth = 4
hole.DrillPoint = "Flat"
hole.Reversed = True

sketch14 = body.newObject("Sketcher::SketchObject", "Sketch013")
sketch14.AttachmentSupport = (doc.getObject("XZ_Plane"), [""])
sketch14.MapMode = "FlatFace"
sketch14.AttachmentOffset = App.Placement(V(0, 0, -26.95), App.Rotation())
sketch14.addGeometry([
    Part.LineSegment(V(17.2, -12.4, 0), V(0.2, -12.4, 0)),
    Part.LineSegment(V(0.2, -12.4, 0), V(0.2, -2.2, 0)),
    Part.ArcOfCircle(Part.Circle(V(0.2, 0, 0), V(0, 0, 1), 2.2), math.radians(90), math.radians(270)),
    Part.LineSegment(V(0.2, 2.2, 0), V(0.2, 12.4, 0)),
    Part.LineSegment(V(0.2, 12.4, 0), V(17.2, 12.4, 0)),
    Part.LineSegment(V(17.2, 12.4, 0), V(17.2, -12.4, 0)),
], False)
sketch14.addConstraint([
    Sketcher.Constraint("Coincident", 0, 2, 1, 1),
    Sketcher.Constraint("Coincident", 1, 2, 2, 2),
    Sketcher.Constraint("Coincident", 2, 1, 3, 1),
    Sketcher.Constraint("Coincident", 3, 2, 4, 1),
    Sketcher.Constraint("Coincident", 4, 2, 5, 1),
    Sketcher.Constraint("Coincident", 5, 2, 0, 1),
    Sketcher.Constraint("Horizontal", 0),
    Sketcher.Constraint("Vertical", 1),
    Sketcher.Constraint("Vertical", 3),
    Sketcher.Constraint("Horizontal", 4),
    Sketcher.Constraint("Vertical", 5),
    Sketcher.Constraint("Symmetric", 1, 2, 2, 1, -1),
    Sketcher.Constraint("Vertical", 2, 3, 0, 2),
    Sketcher.Constraint("Equal", 1, 3),
    Sketcher.Constraint("DistanceX", 0, 2, 0, 1, 17.0),
    Sketcher.Constraint("Radius", 2, 2.23),
    Sketcher.Constraint("DistanceY", 5, 2, 5, 1, 24.85),
    Sketcher.Constraint("DistanceX", -1, 1, 2, 3, 0.25),
])
pad9 = body.newObject("PartDesign::Pad", "Pad008")
pad9.Profile = sketch14
pad9.Length = 0.5
pad9.Reversed = True

sketch15 = body.newObject("Sketcher::SketchObject", "Sketch014")
sketch15.AttachmentSupport = (doc.getObject("YZ_Plane"), [""])
sketch15.MapMode = "FlatFace"
sketch15.AttachmentOffset = App.Placement(V(0, 0, -29.55), App.Rotation())
add_polygon(sketch15, [(-14.4, -3.6), (-18.8, -3.6), (-18.8, 3.6), (-14.4, 3.6)])
sketch15.addConstraint([
    Sketcher.Constraint("Horizontal", 0),
    Sketcher.Constraint("Vertical", 1),
    Sketcher.Constraint("Horizontal", 2),
    Sketcher.Constraint("Vertical", 3),
    Sketcher.Constraint("DistanceX", 0, 2, 0, 1, 4.41),
    Sketcher.Constraint("DistanceY", 1, 1, 1, 2, 7.24),
    Sketcher.Constraint("DistanceX", 0, 2, -1, 1, 18.8),
    Sketcher.Constraint("DistanceY", 0, 2, -1, 1, 3.62),
])

sketch16 = body.newObject("Sketcher::SketchObject", "Sketch015")
sketch16.AttachmentSupport = (doc.getObject("YZ_Plane"), [""])
sketch16.MapMode = "FlatFace"
sketch16.AttachmentOffset = App.Placement(V(0, 0, -35.55), App.Rotation())
add_polygon(sketch16, [(-14.9, -3.1), (-18.3, -3.1), (-18.3, 3.1), (-14.9, 3.1)])
sketch16.addConstraint([
    Sketcher.Constraint("Horizontal", 0),
    Sketcher.Constraint("Vertical", 1),
    Sketcher.Constraint("Horizontal", 2),
    Sketcher.Constraint("Vertical", 3),
    Sketcher.Constraint("DistanceX", 0, 2, 0, 1, 3.41),
    Sketcher.Constraint("DistanceY", 1, 1, 1, 2, 6.24),
    Sketcher.Constraint("DistanceX", 0, 2, -1, 1, 18.3),
    Sketcher.Constraint("DistanceY", 0, 2, -1, 1, 3.12),
])

additiveloft = body.newObject("PartDesign::AdditiveLoft", "AdditiveLoft")
additiveloft.Profile = sketch15
additiveloft.Sections = [sketch16]

doc.recompute()
